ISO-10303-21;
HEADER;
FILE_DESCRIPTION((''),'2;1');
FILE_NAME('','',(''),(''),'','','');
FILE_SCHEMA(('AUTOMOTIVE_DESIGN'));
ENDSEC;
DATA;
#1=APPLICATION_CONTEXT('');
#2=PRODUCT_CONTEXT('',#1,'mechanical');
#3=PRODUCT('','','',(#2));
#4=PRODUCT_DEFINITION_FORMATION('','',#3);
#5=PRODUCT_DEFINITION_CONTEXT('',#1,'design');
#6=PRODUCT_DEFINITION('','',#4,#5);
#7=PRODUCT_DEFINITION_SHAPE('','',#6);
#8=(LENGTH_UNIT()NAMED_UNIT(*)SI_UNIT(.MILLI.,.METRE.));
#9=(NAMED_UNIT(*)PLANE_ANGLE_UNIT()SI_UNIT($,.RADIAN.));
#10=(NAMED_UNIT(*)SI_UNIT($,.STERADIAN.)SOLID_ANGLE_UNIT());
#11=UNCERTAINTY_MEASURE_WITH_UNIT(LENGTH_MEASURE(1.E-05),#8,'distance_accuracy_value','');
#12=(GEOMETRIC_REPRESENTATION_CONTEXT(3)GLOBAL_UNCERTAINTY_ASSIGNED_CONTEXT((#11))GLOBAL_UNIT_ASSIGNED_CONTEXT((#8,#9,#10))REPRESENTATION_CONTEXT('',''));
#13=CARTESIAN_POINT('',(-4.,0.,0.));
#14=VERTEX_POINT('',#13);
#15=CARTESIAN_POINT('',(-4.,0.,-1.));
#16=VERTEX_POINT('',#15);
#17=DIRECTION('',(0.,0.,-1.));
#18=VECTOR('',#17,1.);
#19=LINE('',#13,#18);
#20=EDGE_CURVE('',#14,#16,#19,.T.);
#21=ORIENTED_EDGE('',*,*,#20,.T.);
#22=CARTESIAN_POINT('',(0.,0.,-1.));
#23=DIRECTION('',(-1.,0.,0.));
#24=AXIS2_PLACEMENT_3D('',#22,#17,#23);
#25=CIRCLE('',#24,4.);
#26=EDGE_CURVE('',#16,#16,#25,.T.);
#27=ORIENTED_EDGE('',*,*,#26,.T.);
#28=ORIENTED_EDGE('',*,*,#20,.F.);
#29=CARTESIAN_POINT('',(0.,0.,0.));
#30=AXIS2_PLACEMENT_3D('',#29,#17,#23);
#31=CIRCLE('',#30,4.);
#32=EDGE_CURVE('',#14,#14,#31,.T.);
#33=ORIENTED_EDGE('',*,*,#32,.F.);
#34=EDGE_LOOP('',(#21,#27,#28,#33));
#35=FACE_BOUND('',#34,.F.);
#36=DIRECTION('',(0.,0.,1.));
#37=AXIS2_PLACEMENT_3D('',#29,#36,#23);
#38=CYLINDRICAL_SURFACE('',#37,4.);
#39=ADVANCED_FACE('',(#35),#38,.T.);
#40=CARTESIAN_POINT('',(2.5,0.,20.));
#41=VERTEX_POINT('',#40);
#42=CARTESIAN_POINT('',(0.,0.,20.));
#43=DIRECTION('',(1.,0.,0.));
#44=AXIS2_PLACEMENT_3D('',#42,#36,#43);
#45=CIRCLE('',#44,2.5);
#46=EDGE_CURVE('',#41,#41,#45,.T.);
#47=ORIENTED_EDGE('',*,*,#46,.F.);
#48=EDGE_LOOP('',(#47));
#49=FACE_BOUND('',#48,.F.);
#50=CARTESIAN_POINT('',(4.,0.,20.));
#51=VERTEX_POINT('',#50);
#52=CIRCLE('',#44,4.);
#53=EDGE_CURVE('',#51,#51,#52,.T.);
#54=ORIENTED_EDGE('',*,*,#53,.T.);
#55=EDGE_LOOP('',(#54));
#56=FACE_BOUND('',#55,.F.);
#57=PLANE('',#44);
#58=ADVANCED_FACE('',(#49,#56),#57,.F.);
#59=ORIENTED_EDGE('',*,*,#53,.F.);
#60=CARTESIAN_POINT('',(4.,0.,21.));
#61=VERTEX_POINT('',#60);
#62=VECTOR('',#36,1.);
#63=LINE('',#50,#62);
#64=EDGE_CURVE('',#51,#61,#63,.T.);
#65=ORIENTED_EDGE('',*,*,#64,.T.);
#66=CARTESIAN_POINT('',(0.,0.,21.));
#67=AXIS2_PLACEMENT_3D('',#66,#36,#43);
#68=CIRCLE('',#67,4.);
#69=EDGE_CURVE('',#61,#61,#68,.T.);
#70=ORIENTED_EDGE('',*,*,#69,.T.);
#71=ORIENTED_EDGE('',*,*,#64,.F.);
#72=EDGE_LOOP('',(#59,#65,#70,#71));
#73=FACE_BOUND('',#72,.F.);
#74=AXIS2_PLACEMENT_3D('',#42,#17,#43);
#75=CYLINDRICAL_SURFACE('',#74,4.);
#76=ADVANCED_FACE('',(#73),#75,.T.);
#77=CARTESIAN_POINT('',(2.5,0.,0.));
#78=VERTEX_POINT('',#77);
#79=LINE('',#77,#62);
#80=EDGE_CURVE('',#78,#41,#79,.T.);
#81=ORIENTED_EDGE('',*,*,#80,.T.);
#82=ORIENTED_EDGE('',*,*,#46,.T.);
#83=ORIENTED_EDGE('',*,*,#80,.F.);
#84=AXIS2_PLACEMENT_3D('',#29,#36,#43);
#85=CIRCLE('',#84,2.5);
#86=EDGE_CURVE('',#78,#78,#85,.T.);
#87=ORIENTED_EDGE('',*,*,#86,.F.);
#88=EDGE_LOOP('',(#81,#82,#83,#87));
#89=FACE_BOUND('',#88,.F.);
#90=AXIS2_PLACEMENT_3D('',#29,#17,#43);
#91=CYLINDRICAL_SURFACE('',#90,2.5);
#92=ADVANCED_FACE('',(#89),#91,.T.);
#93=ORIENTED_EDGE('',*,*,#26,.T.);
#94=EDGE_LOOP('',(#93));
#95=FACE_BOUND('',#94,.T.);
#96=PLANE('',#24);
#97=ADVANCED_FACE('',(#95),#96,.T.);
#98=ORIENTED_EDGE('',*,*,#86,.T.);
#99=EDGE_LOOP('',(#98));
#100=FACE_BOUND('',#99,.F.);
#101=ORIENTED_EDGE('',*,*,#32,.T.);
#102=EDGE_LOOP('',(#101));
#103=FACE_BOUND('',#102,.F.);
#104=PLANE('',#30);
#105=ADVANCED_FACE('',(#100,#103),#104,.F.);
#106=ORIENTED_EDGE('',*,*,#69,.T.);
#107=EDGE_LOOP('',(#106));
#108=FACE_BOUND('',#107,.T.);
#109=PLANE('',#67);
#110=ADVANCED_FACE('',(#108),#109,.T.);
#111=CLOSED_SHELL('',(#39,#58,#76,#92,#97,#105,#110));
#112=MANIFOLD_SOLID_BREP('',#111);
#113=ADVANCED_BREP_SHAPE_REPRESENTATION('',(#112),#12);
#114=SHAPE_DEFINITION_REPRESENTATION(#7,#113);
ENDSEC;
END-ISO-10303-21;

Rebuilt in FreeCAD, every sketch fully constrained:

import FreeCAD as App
import Part
import Sketcher
from FreeCAD import Vector
Q = App.Units.Quantity

doc = App.newDocument("Part")
params = doc.addObject("Spreadsheet::Sheet", "Params")
for row, (alias, value) in enumerate([
    ("sketch1_diameter", "5 mm"),
    ("pad1_length", "20 mm"),
    ("sketch2_diameter", "8 mm"),
    ("pad2_length", "1 mm"),
    ("sketch3_diameter", "8 mm"),
    ("pad3_length", "1 mm"),
], start=1):
    params.set(f"A{row}", alias)
    params.set(f"B{row}", "=" + value)
    params.setAlias(f"B{row}", alias)

body = doc.addObject("PartDesign::Body", "Body")

# Sketch on XY plane
sketch1 = body.newObject("Sketcher::SketchObject", "Sketch")
sketch1.AttachmentSupport = (doc.getObject("XY_Plane"), [""])
sketch1.MapMode = "FlatFace"
sketch1.addGeometry(Part.Circle(Vector(0, 0, 0), Vector(0, 0, 1), 2.5), False)
sketch1.addConstraint([
    Sketcher.Constraint("Coincident", 0, 3, -1, 1),
    Sketcher.Constraint("Diameter", 0, Q("5 mm")),
])
sketch1.setExpression("Constraints[1]", "Params.sketch1_diameter")
pad1 = body.newObject("PartDesign::Pad", "Pad")
pad1.Profile = sketch1
pad1.setExpression("Length", "Params.pad1_length")

# Sketch on XY plane
sketch2 = body.newObject("Sketcher::SketchObject", "Sketch001")
sketch2.AttachmentSupport = (doc.getObject("XY_Plane"), [""])
sketch2.MapMode = "FlatFace"
sketch2.AttachmentOffset = App.Placement(Vector(0, 0, 20), App.Rotation())
sketch2.addGeometry(Part.Circle(Vector(0, 0, 0), Vector(0, 0, 1), 4), False)
sketch2.addConstraint([
    Sketcher.Constraint("Coincident", 0, 3, -1, 1),
    Sketcher.Constraint("Diameter", 0, Q("8 mm")),
])
sketch2.setExpression("Constraints[1]", "Params.sketch2_diameter")
pad2 = body.newObject("PartDesign::Pad", "Pad001")
pad2.Profile = sketch2
pad2.setExpression("Length", "Params.pad2_length")

# Sketch on XY plane
sketch3 = body.newObject("Sketcher::SketchObject", "Sketch002")
sketch3.AttachmentSupport = (doc.getObject("XY_Plane"), [""])
sketch3.MapMode = "FlatFace"
sketch3.addGeometry(Part.Circle(Vector(0, 0, 0), Vector(0, 0, 1), 4), False)
sketch3.addConstraint([
    Sketcher.Constraint("Coincident", 0, 3, -1, 1),
    Sketcher.Constraint("Diameter", 0, Q("8 mm")),
])
sketch3.setExpression("Constraints[1]", "Params.sketch3_diameter")
pad3 = body.newObject("PartDesign::Pad", "Pad002")
pad3.Profile = sketch3
pad3.setExpression("Length", "Params.pad3_length")
pad3.Reversed = True

doc.recompute()
